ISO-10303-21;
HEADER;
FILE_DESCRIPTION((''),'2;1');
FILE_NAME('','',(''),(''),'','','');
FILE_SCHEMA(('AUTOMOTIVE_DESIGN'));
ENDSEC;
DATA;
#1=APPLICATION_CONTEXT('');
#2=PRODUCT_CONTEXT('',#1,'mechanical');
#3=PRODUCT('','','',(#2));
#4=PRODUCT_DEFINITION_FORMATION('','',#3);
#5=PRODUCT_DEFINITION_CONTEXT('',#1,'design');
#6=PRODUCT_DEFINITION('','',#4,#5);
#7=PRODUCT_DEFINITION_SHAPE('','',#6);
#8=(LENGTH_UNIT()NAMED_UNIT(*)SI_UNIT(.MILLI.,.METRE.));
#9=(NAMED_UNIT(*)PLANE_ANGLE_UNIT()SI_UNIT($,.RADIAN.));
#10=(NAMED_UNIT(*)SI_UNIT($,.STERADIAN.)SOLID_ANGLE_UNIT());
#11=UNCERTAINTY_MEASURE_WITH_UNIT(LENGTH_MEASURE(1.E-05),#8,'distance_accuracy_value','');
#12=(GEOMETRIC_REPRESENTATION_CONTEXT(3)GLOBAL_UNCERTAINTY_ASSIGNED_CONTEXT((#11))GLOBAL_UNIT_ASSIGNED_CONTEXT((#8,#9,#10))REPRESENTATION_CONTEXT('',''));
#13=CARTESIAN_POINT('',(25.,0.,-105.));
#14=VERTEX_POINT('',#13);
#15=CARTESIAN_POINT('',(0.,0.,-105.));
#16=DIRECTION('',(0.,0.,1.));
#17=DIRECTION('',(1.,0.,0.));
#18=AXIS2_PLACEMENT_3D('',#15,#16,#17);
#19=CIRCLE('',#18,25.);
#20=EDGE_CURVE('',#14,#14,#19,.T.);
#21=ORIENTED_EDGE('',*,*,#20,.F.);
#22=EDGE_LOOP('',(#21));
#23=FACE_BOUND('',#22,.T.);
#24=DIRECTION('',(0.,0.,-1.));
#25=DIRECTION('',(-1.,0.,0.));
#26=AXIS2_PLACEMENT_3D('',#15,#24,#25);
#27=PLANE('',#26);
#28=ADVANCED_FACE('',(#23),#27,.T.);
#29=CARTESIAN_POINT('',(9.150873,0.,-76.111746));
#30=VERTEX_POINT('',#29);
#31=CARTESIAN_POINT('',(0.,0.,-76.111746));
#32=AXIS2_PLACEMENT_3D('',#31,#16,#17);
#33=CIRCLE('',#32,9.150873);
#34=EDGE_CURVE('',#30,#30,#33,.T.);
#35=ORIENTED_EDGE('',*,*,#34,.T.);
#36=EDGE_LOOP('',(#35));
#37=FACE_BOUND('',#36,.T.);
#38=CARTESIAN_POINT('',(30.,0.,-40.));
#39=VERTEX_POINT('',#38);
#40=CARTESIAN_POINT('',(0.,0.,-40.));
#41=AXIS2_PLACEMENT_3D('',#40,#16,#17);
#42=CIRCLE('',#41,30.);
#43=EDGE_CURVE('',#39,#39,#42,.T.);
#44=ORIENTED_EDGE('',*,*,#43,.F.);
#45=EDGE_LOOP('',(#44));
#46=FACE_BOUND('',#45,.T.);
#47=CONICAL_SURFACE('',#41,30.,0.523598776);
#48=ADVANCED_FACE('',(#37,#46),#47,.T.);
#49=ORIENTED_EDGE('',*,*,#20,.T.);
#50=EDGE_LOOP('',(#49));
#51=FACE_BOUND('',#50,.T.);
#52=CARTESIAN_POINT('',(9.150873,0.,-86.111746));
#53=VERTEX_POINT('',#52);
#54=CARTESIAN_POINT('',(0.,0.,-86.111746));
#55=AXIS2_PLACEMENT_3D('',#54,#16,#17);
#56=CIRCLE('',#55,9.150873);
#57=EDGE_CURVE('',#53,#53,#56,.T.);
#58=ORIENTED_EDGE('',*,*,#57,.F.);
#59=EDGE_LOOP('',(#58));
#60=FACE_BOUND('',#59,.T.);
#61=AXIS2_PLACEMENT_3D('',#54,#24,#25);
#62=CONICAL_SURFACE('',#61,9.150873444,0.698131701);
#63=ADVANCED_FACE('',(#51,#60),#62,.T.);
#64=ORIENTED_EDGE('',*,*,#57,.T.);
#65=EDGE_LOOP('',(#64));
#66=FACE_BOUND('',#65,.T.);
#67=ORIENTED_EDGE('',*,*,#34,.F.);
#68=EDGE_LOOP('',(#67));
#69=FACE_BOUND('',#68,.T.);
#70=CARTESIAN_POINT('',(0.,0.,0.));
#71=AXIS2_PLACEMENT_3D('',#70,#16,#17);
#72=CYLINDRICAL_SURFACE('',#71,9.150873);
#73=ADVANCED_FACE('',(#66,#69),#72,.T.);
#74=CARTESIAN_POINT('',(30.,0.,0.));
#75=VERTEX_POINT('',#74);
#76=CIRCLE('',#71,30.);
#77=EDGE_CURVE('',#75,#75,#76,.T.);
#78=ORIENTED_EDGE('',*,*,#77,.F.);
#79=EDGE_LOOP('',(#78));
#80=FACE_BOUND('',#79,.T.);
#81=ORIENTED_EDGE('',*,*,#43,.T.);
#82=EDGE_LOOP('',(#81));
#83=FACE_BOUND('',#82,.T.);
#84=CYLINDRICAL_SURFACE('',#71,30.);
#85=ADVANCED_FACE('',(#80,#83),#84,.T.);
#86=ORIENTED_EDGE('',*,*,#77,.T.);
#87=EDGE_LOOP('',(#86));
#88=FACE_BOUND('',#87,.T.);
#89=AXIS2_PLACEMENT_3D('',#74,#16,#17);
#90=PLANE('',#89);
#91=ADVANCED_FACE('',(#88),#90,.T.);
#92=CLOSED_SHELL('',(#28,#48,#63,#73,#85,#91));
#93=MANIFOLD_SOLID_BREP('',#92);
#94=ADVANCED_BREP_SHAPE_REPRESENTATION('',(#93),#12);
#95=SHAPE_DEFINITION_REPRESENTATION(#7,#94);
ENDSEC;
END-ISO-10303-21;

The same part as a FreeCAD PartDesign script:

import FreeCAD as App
import Part
import Sketcher
Q = App.Units.Quantity

doc = App.newDocument("Part")
body = doc.addObject("PartDesign::Body", "Body")

# Sketch on XZ plane
sketch1 = body.newObject("Sketcher::SketchObject", "Sketch")
sketch1.AttachmentSupport = (doc.getObject("XZ_Plane"), [""])
sketch1.MapMode = "FlatFace"
sketch1.addGeometry([
    Part.LineSegment(App.Vector(0, -105, 0), App.Vector(0, 0, 0)),  # 0
    Part.LineSegment(App.Vector(0, 0, 0), App.Vector(30, 0, 0)),  # 1
    Part.LineSegment(App.Vector(30, 0, 0), App.Vector(30, -40, 0)),  # 2
    Part.LineSegment(App.Vector(30, -40, 0), App.Vector(9, -76, 0)),  # 3
    Part.LineSegment(App.Vector(9, -76, 0), App.Vector(9, -86, 0)),  # 4
    Part.LineSegment(App.Vector(9, -86, 0), App.Vector(25, -105, 0)),  # 5
    Part.LineSegment(App.Vector(25, -105, 0), App.Vector(0, -105, 0)),  # 6
], False)
sketch1.addConstraint([
    Sketcher.Constraint("Coincident", 0, 2, 1, 1),
    Sketcher.Constraint("Coincident", 1, 2, 2, 1),
    Sketcher.Constraint("Coincident", 2, 2, 3, 1),
    Sketcher.Constraint("Coincident", 3, 2, 4, 1),
    Sketcher.Constraint("Coincident", 4, 2, 5, 1),
    Sketcher.Constraint("Coincident", 5, 2, 6, 1),
    Sketcher.Constraint("Coincident", 6, 2, 0, 1),
    Sketcher.Constraint("Vertical", 0),
    Sketcher.Constraint("Horizontal", 1),
    Sketcher.Constraint("Vertical", 2),
    Sketcher.Constraint("Vertical", 4),
    Sketcher.Constraint("Horizontal", 6),
    Sketcher.Constraint("Coincident", 0, 2, -1, 1),
    Sketcher.Constraint("DistanceX", 1, 1, 1, 2, 30.0),
    Sketcher.Constraint("DistanceX", 6, 2, 6, 1, 25.0),
    Sketcher.Constraint("DistanceY", 0, 1, 0, 2, 105.0),
    Sketcher.Constraint("DistanceY", 2, 2, 2, 1, 40.0),
    Sketcher.Constraint("DistanceY", 4, 2, 4, 1, 10.0),
    Sketcher.Constraint("Angle", 3, Q("-120 deg")),
    Sketcher.Constraint("Angle", 5, Q("-50 deg")),
])
revolution = body.newObject("PartDesign::Revolution", "Revolution")
revolution.Profile = sketch1
revolution.ReferenceAxis = (sketch1, ["V_Axis"])
revolution.Angle = 360

doc.recompute()
